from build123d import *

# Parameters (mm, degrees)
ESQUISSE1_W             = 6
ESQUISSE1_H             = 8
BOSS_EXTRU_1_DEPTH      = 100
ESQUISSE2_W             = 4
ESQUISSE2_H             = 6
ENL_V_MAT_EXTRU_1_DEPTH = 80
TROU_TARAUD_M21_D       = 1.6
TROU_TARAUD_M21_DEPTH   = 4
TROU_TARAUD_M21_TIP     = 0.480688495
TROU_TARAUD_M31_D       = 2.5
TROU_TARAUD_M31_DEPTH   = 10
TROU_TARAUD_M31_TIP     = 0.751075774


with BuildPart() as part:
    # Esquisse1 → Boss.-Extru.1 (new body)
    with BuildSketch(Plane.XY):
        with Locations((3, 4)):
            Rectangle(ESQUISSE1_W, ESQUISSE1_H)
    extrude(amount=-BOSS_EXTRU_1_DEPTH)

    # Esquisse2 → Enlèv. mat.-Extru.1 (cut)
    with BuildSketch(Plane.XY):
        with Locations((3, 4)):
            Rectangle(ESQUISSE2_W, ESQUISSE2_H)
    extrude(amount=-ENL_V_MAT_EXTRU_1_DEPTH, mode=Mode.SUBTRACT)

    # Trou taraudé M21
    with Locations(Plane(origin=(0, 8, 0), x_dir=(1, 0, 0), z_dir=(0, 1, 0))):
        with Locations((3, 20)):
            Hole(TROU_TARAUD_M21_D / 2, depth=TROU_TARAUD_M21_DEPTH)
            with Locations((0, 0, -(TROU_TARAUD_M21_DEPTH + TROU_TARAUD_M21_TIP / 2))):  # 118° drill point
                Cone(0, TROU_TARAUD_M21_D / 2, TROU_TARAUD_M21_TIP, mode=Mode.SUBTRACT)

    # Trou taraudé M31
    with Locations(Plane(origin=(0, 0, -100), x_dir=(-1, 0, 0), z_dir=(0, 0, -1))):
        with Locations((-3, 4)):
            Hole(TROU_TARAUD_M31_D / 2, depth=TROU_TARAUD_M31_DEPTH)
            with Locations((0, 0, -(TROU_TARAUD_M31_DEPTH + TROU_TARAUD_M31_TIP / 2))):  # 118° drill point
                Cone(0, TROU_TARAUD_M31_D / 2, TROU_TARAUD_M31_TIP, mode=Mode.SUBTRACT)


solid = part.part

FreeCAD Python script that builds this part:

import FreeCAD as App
import Part
import Sketcher
from FreeCAD import Vector


def add_polygon(sketch, points):
    """Adds a closed chain of lines whose ends are joined by coincident constraints."""
    first, n = sketch.GeometryCount, len(points)
    for a, b in zip(points, points[1:] + points[:1]):
        sketch.addGeometry(Part.LineSegment(App.Vector(*a, 0), App.Vector(*b, 0)), False)
    for i in range(n):
        sketch.addConstraint(Sketcher.Constraint("Coincident", first + i, 2, first + (i + 1) % n, 1))

doc = App.newDocument("Part")
body = doc.addObject("PartDesign::Body", "Body")

# Sketch on XY plane
sketch1 = body.newObject("Sketcher::SketchObject", "Sketch")
sketch1.AttachmentSupport = (doc.getObject("XY_Plane"), [""])
sketch1.MapMode = "FlatFace"
add_polygon(sketch1, [(0, 8), (0, 0), (6, 0), (6, 8)])  # lines 0-3
sketch1.addConstraint(Sketcher.Constraint("Vertical", 0))
sketch1.addConstraint(Sketcher.Constraint("Horizontal", 1))
sketch1.addConstraint(Sketcher.Constraint("Vertical", 2))
sketch1.addConstraint(Sketcher.Constraint("Horizontal", 3))
sketch1.addConstraint(Sketcher.Constraint("Coincident", 0, 2, -1, 1))
sketch1.addConstraint(Sketcher.Constraint("DistanceX", 1, 1, 1, 2, 6.0))
sketch1.addConstraint(Sketcher.Constraint("DistanceY", 0, 2, 0, 1, 8.0))
pad1 = body.newObject("PartDesign::Pad", "Pad")
pad1.Profile = sketch1
pad1.Length = 100
pad1.Reversed = True

# Sketch on XY plane
sketch2 = body.newObject("Sketcher::SketchObject", "Sketch001")
sketch2.AttachmentSupport = (doc.getObject("XY_Plane"), [""])
sketch2.MapMode = "FlatFace"
add_polygon(sketch2, [(1, 7), (1, 1), (5, 1), (5, 7)])  # lines 0-3
sketch2.addConstraint(Sketcher.Constraint("Vertical", 0))
sketch2.addConstraint(Sketcher.Constraint("Horizontal", 1))
sketch2.addConstraint(Sketcher.Constraint("Vertical", 2))
sketch2.addConstraint(Sketcher.Constraint("Horizontal", 3))
sketch2.addConstraint(Sketcher.Constraint("DistanceX", 1, 1, 1, 2, 4.0))
sketch2.addConstraint(Sketcher.Constraint("DistanceY", 0, 2, 0, 1, 6.0))
sketch2.addConstraint(Sketcher.Constraint("DistanceX", -1, 1, 0, 2, 1.0))
sketch2.addConstraint(Sketcher.Constraint("DistanceY", -1, 1, 0, 2, 1.0))
pocket1 = body.newObject("PartDesign::Pocket", "Pocket")
pocket1.Profile = sketch2
pocket1.Length = 80

# Sketch on XZ plane
sketch3 = body.newObject("Sketcher::SketchObject", "Sketch002")
sketch3.AttachmentSupport = (doc.getObject("XZ_Plane"), [""])
sketch3.MapMode = "FlatFace"
sketch3.AttachmentOffset = App.Placement(Vector(0, 0, -8), App.Rotation())
sketch3.addGeometry(Part.Circle(Vector(3, -20, 0), Vector(0, 0, 1), 0.8), False)
sketch3.addConstraint(Sketcher.Constraint("Diameter", 0, 1.6))
sketch3.addConstraint(Sketcher.Constraint("DistanceX", -1, 1, 0, 3, 3.0))
sketch3.addConstraint(Sketcher.Constraint("DistanceY", 0, 3, -1, 1, 20.0))
doc.recompute()
hole = body.newObject("PartDesign::Hole", "Hole")
hole.Profile = sketch3
hole.ThreadType = "None"
hole.Diameter = 1.6
hole.DepthType = "Dimension"
hole.Depth = 4
hole.DrillPoint = "Angled"
hole.DrillPointAngle = 118
hole.Reversed = True

# Sketch on XY plane
sketch4 = body.newObject("Sketcher::SketchObject", "Sketch003")
sketch4.AttachmentSupport = (doc.getObject("XY_Plane"), [""])
sketch4.MapMode = "FlatFace"
sketch4.AttachmentOffset = App.Placement(Vector(0, 0, -100), App.Rotation())
sketch4.addGeometry(Part.Circle(Vector(3, 4, 0), Vector(0, 0, 1), 1.2), False)
sketch4.addConstraint(Sketcher.Constraint("Diameter", 0, 2.5))
sketch4.addConstraint(Sketcher.Constraint("DistanceX", -1, 1, 0, 3, 3.0))
sketch4.addConstraint(Sketcher.Constraint("DistanceY", -1, 1, 0, 3, 4.0))
doc.recompute()
hole2 = body.newObject("PartDesign::Hole", "Hole001")
hole2.Profile = sketch4
hole2.ThreadType = "None"
hole2.Diameter = 2.5
hole2.DepthType = "Dimension"
hole2.Depth = 10
hole2.DrillPoint = "Angled"
hole2.DrillPointAngle = 118
hole2.Reversed = True

doc.recompute()
